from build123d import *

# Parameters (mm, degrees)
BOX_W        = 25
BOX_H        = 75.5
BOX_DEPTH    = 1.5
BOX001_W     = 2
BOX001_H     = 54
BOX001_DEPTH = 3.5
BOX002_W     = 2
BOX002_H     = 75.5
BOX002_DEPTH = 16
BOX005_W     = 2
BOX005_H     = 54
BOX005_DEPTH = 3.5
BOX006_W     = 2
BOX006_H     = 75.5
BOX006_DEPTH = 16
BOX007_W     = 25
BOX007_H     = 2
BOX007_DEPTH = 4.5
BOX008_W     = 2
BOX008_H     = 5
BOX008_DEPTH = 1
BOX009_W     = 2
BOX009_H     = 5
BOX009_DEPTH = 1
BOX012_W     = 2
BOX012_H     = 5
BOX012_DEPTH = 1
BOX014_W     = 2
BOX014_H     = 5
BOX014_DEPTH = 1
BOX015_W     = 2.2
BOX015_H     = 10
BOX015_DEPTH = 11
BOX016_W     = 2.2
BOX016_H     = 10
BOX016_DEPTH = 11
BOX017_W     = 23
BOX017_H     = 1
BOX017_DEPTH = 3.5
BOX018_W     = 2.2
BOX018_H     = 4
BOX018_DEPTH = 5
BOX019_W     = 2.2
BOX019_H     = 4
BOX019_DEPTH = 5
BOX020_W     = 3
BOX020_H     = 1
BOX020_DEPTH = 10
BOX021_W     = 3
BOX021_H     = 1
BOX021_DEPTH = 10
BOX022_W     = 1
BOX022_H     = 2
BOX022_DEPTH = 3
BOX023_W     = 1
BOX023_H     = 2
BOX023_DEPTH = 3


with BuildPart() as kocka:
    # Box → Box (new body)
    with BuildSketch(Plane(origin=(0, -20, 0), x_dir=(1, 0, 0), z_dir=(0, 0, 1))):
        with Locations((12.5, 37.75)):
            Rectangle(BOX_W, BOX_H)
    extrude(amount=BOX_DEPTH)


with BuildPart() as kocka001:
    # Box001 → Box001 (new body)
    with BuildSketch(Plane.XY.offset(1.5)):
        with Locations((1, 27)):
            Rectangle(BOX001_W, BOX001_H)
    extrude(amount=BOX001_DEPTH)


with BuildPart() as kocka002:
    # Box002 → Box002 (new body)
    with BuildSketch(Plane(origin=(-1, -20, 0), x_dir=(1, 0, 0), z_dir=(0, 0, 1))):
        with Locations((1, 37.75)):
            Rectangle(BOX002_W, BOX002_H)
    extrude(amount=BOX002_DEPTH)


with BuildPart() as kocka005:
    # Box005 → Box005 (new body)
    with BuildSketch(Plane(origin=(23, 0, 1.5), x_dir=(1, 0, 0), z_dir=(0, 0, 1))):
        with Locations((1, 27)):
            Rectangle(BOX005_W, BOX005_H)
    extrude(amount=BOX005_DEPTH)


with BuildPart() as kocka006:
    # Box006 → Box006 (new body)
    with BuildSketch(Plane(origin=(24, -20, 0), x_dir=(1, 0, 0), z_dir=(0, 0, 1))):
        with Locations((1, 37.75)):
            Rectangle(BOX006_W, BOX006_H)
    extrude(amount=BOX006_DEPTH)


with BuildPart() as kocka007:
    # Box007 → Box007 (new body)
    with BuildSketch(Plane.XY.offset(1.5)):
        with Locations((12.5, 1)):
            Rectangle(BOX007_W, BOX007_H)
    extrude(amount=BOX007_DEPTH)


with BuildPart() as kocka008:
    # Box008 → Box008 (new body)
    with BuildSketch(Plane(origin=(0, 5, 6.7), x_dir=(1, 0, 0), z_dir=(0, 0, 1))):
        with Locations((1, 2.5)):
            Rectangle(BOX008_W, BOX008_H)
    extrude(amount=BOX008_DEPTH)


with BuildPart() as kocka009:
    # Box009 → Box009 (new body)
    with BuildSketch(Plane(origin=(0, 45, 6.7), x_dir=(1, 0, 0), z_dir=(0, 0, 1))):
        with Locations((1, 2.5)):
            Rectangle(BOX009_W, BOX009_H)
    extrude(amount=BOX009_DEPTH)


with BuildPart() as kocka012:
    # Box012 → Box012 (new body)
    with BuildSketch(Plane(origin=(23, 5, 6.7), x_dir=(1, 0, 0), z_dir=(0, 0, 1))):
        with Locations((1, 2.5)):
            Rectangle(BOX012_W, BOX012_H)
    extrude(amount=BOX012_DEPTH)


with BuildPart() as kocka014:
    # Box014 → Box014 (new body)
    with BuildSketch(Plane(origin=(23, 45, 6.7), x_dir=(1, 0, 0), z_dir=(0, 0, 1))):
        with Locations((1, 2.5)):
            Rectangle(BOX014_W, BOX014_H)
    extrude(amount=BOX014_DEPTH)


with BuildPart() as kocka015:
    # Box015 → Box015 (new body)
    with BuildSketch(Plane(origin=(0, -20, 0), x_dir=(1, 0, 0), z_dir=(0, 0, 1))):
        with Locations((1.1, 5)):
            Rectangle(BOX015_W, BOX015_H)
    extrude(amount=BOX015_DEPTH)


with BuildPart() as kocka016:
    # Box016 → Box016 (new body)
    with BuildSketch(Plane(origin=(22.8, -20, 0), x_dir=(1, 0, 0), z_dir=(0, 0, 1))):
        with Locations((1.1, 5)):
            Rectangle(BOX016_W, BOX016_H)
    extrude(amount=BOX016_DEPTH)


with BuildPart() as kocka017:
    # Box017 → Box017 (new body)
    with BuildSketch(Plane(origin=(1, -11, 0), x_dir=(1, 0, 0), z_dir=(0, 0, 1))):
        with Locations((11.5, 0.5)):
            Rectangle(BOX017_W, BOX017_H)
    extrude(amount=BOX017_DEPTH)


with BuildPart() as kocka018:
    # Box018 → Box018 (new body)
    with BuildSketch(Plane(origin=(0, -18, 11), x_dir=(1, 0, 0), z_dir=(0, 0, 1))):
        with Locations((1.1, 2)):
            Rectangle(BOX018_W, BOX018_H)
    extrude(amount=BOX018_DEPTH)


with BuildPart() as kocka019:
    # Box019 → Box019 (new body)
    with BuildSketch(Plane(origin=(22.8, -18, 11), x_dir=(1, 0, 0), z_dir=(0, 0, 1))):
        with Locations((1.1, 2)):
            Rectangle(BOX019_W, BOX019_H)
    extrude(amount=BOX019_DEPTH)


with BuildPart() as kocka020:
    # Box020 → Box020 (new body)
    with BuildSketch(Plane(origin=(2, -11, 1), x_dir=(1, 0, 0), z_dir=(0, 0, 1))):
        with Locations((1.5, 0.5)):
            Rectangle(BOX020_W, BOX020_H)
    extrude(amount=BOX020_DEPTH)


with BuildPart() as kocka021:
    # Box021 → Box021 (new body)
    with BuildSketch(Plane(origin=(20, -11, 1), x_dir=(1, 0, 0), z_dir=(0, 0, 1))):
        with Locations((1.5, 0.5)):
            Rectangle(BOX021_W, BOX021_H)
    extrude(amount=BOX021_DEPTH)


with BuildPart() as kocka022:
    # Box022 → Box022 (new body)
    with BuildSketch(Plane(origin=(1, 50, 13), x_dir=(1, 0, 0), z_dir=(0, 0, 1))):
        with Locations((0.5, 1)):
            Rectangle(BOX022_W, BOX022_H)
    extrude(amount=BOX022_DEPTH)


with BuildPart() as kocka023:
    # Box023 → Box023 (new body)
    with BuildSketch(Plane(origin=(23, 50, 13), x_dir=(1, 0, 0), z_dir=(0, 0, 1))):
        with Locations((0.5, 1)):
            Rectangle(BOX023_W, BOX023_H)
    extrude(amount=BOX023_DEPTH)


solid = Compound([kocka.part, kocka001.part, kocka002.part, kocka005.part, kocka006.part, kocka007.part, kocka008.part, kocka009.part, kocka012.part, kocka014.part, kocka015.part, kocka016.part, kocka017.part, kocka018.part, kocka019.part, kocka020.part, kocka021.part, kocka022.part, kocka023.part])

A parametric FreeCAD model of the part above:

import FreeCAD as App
import Part
import Sketcher


def add_polygon(sketch, points):
    """Adds a closed chain of lines whose ends are joined by coincident constraints."""
    first, n = sketch.GeometryCount, len(points)
    for a, b in zip(points, points[1:] + points[:1]):
        sketch.addGeometry(Part.LineSegment(App.Vector(*a, 0), App.Vector(*b, 0)), False)
    for i in range(n):
        sketch.addConstraint(Sketcher.Constraint("Coincident", first + i, 2, first + (i + 1) % n, 1))

doc = App.newDocument("Part")
body = doc.addObject("PartDesign::Body", "Body")

# Sketch on XY plane
sketch1 = body.newObject("Sketcher::SketchObject", "Sketch")
sketch1.AttachmentSupport = (doc.getObject("XY_Plane"), [""])
sketch1.MapMode = "FlatFace"
add_polygon(sketch1, [(0, 56), (0, -20), (25, -20), (25, 56)])  # lines 0-3
sketch1.addConstraint([
    Sketcher.Constraint("Vertical", 0),
    Sketcher.Constraint("Horizontal", 1),
    Sketcher.Constraint("Vertical", 2),
    Sketcher.Constraint("Horizontal", 3),
    Sketcher.Constraint("PointOnObject", 0, 2, -2),
    Sketcher.Constraint("DistanceX", 1, 1, 1, 2, 25.0),
    Sketcher.Constraint("DistanceY", 0, 2, 0, 1, 75.5),
    Sketcher.Constraint("DistanceY", 0, 2, -1, 1, 20.0),
])
pad1 = body.newObject("PartDesign::Pad", "Pad")
pad1.Profile = sketch1
pad1.Length = 1.5
body2 = doc.addObject("PartDesign::Body", "Body001")

# Sketch on XY plane
sketch2 = body2.newObject("Sketcher::SketchObject", "Sketch001")
sketch2.AttachmentSupport = (doc.getObject("XY_Plane001"), [""])
sketch2.MapMode = "FlatFace"
sketch2.AttachmentOffset = App.Placement(App.Vector(0, 0, 1.5), App.Rotation())
add_polygon(sketch2, [(0, 54), (0, 0), (2, 0), (2, 54)])  # lines 0-3
sketch2.addConstraint([
    Sketcher.Constraint("Vertical", 0),
    Sketcher.Constraint("Horizontal", 1),
    Sketcher.Constraint("Vertical", 2),
    Sketcher.Constraint("Horizontal", 3),
    Sketcher.Constraint("Coincident", 0, 2, -1, 1),
    Sketcher.Constraint("DistanceX", 1, 1, 1, 2, 2.0),
    Sketcher.Constraint("DistanceY", 0, 2, 0, 1, 54.0),
])
pad2 = body2.newObject("PartDesign::Pad", "Pad001")
pad2.Profile = sketch2
pad2.Length = 3.5
body3 = doc.addObject("PartDesign::Body", "Body002")

# Sketch on XY plane
sketch3 = body3.newObject("Sketcher::SketchObject", "Sketch002")
sketch3.AttachmentSupport = (doc.getObject("XY_Plane002"), [""])
sketch3.MapMode = "FlatFace"
add_polygon(sketch3, [(-1, 55.5), (-1, -20), (1, -20), (1, 55.5)])  # lines 0-3
sketch3.addConstraint([
    Sketcher.Constraint("Vertical", 0),
    Sketcher.Constraint("Horizontal", 1),
    Sketcher.Constraint("Vertical", 2),
    Sketcher.Constraint("Horizontal", 3),
    Sketcher.Constraint("DistanceX", 1, 1, 1, 2, 2.0),
    Sketcher.Constraint("DistanceY", 0, 2, 0, 1, 75.5),
    Sketcher.Constraint("DistanceX", 0, 2, -1, 1, 1.0),
    Sketcher.Constraint("DistanceY", 0, 2, -1, 1, 20.0),
])
pad3 = body3.newObject("PartDesign::Pad", "Pad002")
pad3.Profile = sketch3
pad3.Length = 16
body4 = doc.addObject("PartDesign::Body", "Body003")

# Sketch on XY plane
sketch4 = body4.newObject("Sketcher::SketchObject", "Sketch003")
sketch4.AttachmentSupport = (doc.getObject("XY_Plane003"), [""])
sketch4.MapMode = "FlatFace"
sketch4.AttachmentOffset = App.Placement(App.Vector(0, 0, 1.5), App.Rotation())
add_polygon(sketch4, [(23, 54), (23, 0), (25, 0), (25, 54)])  # lines 0-3
sketch4.addConstraint([
    Sketcher.Constraint("Vertical", 0),
    Sketcher.Constraint("Horizontal", 1),
    Sketcher.Constraint("Vertical", 2),
    Sketcher.Constraint("Horizontal", 3),
    Sketcher.Constraint("PointOnObject", 0, 2, -1),
    Sketcher.Constraint("DistanceX", 1, 1, 1, 2, 2.0),
    Sketcher.Constraint("DistanceY", 0, 2, 0, 1, 54.0),
    Sketcher.Constraint("DistanceX", -1, 1, 0, 2, 23.0),
])
pad4 = body4.newObject("PartDesign::Pad", "Pad003")
pad4.Profile = sketch4
pad4.Length = 3.5
body5 = doc.addObject("PartDesign::Body", "Body004")

# Sketch on XY plane
sketch5 = body5.newObject("Sketcher::SketchObject", "Sketch004")
sketch5.AttachmentSupport = (doc.getObject("XY_Plane004"), [""])
sketch5.MapMode = "FlatFace"
add_polygon(sketch5, [(24, 55.5), (24, -20), (26, -20), (26, 55.5)])  # lines 0-3
sketch5.addConstraint([
    Sketcher.Constraint("Vertical", 0),
    Sketcher.Constraint("Horizontal", 1),
    Sketcher.Constraint("Vertical", 2),
    Sketcher.Constraint("Horizontal", 3),
    Sketcher.Constraint("DistanceX", 1, 1, 1, 2, 2.0),
    Sketcher.Constraint("DistanceY", 0, 2, 0, 1, 75.5),
    Sketcher.Constraint("DistanceX", -1, 1, 0, 2, 24.0),
    Sketcher.Constraint("DistanceY", 0, 2, -1, 1, 20.0),
])
pad5 = body5.newObject("PartDesign::Pad", "Pad004")
pad5.Profile = sketch5
pad5.Length = 16
body6 = doc.addObject("PartDesign::Body", "Body005")

# Sketch on XY plane
sketch6 = body6.newObject("Sketcher::SketchObject", "Sketch005")
sketch6.AttachmentSupport = (doc.getObject("XY_Plane005"), [""])
sketch6.MapMode = "FlatFace"
sketch6.AttachmentOffset = App.Placement(App.Vector(0, 0, 1.5), App.Rotation())
add_polygon(sketch6, [(0, 2), (0, 0), (25, 0), (25, 2)])  # lines 0-3
sketch6.addConstraint([
    Sketcher.Constraint("Vertical", 0),
    Sketcher.Constraint("Horizontal", 1),
    Sketcher.Constraint("Vertical", 2),
    Sketcher.Constraint("Horizontal", 3),
    Sketcher.Constraint("Coincident", 0, 2, -1, 1),
    Sketcher.Constraint("DistanceX", 1, 1, 1, 2, 25.0),
    Sketcher.Constraint("DistanceY", 0, 2, 0, 1, 2.0),
])
pad6 = body6.newObject("PartDesign::Pad", "Pad005")
pad6.Profile = sketch6
pad6.Length = 4.5
body7 = doc.addObject("PartDesign::Body", "Body006")

# Sketch on XY plane
sketch7 = body7.newObject("Sketcher::SketchObject", "Sketch006")
sketch7.AttachmentSupport = (doc.getObject("XY_Plane006"), [""])
sketch7.MapMode = "FlatFace"
sketch7.AttachmentOffset = App.Placement(App.Vector(0, 0, 6.7), App.Rotation())
add_polygon(sketch7, [(0, 10), (0, 5), (2, 5), (2, 10)])  # lines 0-3
sketch7.addConstraint([
    Sketcher.Constraint("Vertical", 0),
    Sketcher.Constraint("Horizontal", 1),
    Sketcher.Constraint("Vertical", 2),
    Sketcher.Constraint("Horizontal", 3),
    Sketcher.Constraint("PointOnObject", 0, 2, -2),
    Sketcher.Constraint("DistanceX", 1, 1, 1, 2, 2.0),
    Sketcher.Constraint("DistanceY", 0, 2, 0, 1, 5.0),
    Sketcher.Constraint("DistanceY", -1, 1, 0, 2, 5.0),
])
pad7 = body7.newObject("PartDesign::Pad", "Pad006")
pad7.Profile = sketch7
pad7.Length = 1
body8 = doc.addObject("PartDesign::Body", "Body007")

# Sketch on XY plane
sketch8 = body8.newObject("Sketcher::SketchObject", "Sketch007")
sketch8.AttachmentSupport = (doc.getObject("XY_Plane007"), [""])
sketch8.MapMode = "FlatFace"
sketch8.AttachmentOffset = App.Placement(App.Vector(0, 0, 6.7), App.Rotation())
add_polygon(sketch8, [(0, 50), (0, 45), (2, 45), (2, 50)])  # lines 0-3
sketch8.addConstraint([
    Sketcher.Constraint("Vertical", 0),
    Sketcher.Constraint("Horizontal", 1),
    Sketcher.Constraint("Vertical", 2),
    Sketcher.Constraint("Horizontal", 3),
    Sketcher.Constraint("PointOnObject", 0, 2, -2),
    Sketcher.Constraint("DistanceX", 1, 1, 1, 2, 2.0),
    Sketcher.Constraint("DistanceY", 0, 2, 0, 1, 5.0),
    Sketcher.Constraint("DistanceY", -1, 1, 0, 2, 45.0),
])
pad8 = body8.newObject("PartDesign::Pad", "Pad007")
pad8.Profile = sketch8
pad8.Length = 1
body9 = doc.addObject("PartDesign::Body", "Body008")

# Sketch on XY plane
sketch9 = body9.newObject("Sketcher::SketchObject", "Sketch008")
sketch9.AttachmentSupport = (doc.getObject("XY_Plane008"), [""])
sketch9.MapMode = "FlatFace"
sketch9.AttachmentOffset = App.Placement(App.Vector(0, 0, 6.7), App.Rotation())
add_polygon(sketch9, [(23, 10), (23, 5), (25, 5), (25, 10)])  # lines 0-3
sketch9.addConstraint([
    Sketcher.Constraint("Vertical", 0),
    Sketcher.Constraint("Horizontal", 1),
    Sketcher.Constraint("Vertical", 2),
    Sketcher.Constraint("Horizontal", 3),
    Sketcher.Constraint("DistanceX", 1, 1, 1, 2, 2.0),
    Sketcher.Constraint("DistanceY", 0, 2, 0, 1, 5.0),
    Sketcher.Constraint("DistanceX", -1, 1, 0, 2, 23.0),
    Sketcher.Constraint("DistanceY", -1, 1, 0, 2, 5.0),
])
pad9 = body9.newObject("PartDesign::Pad", "Pad008")
pad9.Profile = sketch9
pad9.Length = 1
body10 = doc.addObject("PartDesign::Body", "Body009")

# Sketch on XY plane
sketch10 = body10.newObject("Sketcher::SketchObject", "Sketch009")
sketch10.AttachmentSupport = (doc.getObject("XY_Plane009"), [""])
sketch10.MapMode = "FlatFace"
sketch10.AttachmentOffset = App.Placement(App.Vector(0, 0, 6.7), App.Rotation())
add_polygon(sketch10, [(23, 50), (23, 45), (25, 45), (25, 50)])  # lines 0-3
sketch10.addConstraint([
    Sketcher.Constraint("Vertical", 0),
    Sketcher.Constraint("Horizontal", 1),
    Sketcher.Constraint("Vertical", 2),
    Sketcher.Constraint("Horizontal", 3),
    Sketcher.Constraint("DistanceX", 1, 1, 1, 2, 2.0),
    Sketcher.Constraint("DistanceY", 0, 2, 0, 1, 5.0),
    Sketcher.Constraint("DistanceX", -1, 1, 0, 2, 23.0),
    Sketcher.Constraint("DistanceY", -1, 1, 0, 2, 45.0),
])
pad10 = body10.newObject("PartDesign::Pad", "Pad009")
pad10.Profile = sketch10
pad10.Length = 1
body11 = doc.addObject("PartDesign::Body", "Body010")

# Sketch on XY plane
sketch11 = body11.newObject("Sketcher::SketchObject", "Sketch010")
sketch11.AttachmentSupport = (doc.getObject("XY_Plane010"), [""])
sketch11.MapMode = "FlatFace"
add_polygon(sketch11, [(0, -10), (0, -20), (2.2, -20), (2.2, -10)])  # lines 0-3
sketch11.addConstraint([
    Sketcher.Constraint("Vertical", 0),
    Sketcher.Constraint("Horizontal", 1),
    Sketcher.Constraint("Vertical", 2),
    Sketcher.Constraint("Horizontal", 3),
    Sketcher.Constraint("PointOnObject", 0, 2, -2),
    Sketcher.Constraint("DistanceY", 0, 2, 0, 1, 10.0),
    Sketcher.Constraint("DistanceX", 1, 1, 1, 2, 2.2),
    Sketcher.Constraint("DistanceY", 0, 2, -1, 1, 20.0),
])
pad11 = body11.newObject("PartDesign::Pad", "Pad010")
pad11.Profile = sketch11
pad11.Length = 11
body12 = doc.addObject("PartDesign::Body", "Body011")

# Sketch on XY plane
sketch12 = body12.newObject("Sketcher::SketchObject", "Sketch011")
sketch12.AttachmentSupport = (doc.getObject("XY_Plane011"), [""])
sketch12.MapMode = "FlatFace"
add_polygon(sketch12, [(22.8, -10), (22.8, -20), (25, -20), (25, -10)])  # lines 0-3
sketch12.addConstraint([
    Sketcher.Constraint("Vertical", 0),
    Sketcher.Constraint("Horizontal", 1),
    Sketcher.Constraint("Vertical", 2),
    Sketcher.Constraint("Horizontal", 3),
    Sketcher.Constraint("DistanceY", 0, 2, 0, 1, 10.0),
    Sketcher.Constraint("DistanceX", 1, 1, 1, 2, 2.2),
    Sketcher.Constraint("DistanceY", 0, 2, -1, 1, 20.0),
    Sketcher.Constraint("DistanceX", -1, 1, 1, 2, 25.0),
])
pad12 = body12.newObject("PartDesign::Pad", "Pad011")
pad12.Profile = sketch12
pad12.Length = 11
body13 = doc.addObject("PartDesign::Body", "Body012")

# Sketch on XY plane
sketch13 = body13.newObject("Sketcher::SketchObject", "Sketch012")
sketch13.AttachmentSupport = (doc.getObject("XY_Plane012"), [""])
sketch13.MapMode = "FlatFace"
add_polygon(sketch13, [(1, -10), (1, -11), (24, -11), (24, -10)])  # lines 0-3
sketch13.addConstraint([
    Sketcher.Constraint("Vertical", 0),
    Sketcher.Constraint("Horizontal", 1),
    Sketcher.Constraint("Vertical", 2),
    Sketcher.Constraint("Horizontal", 3),
    Sketcher.Constraint("DistanceX", 1, 1, 1, 2, 23.0),
    Sketcher.Constraint("DistanceY", 0, 2, 0, 1, 1.0),
    Sketcher.Constraint("DistanceX", -1, 1, 0, 2, 1.0),
    Sketcher.Constraint("DistanceY", 0, 2, -1, 1, 11.0),
])
pad13 = body13.newObject("PartDesign::Pad", "Pad012")
pad13.Profile = sketch13
pad13.Length = 3.5
body14 = doc.addObject("PartDesign::Body", "Body013")

# Sketch on XY plane
sketch14 = body14.newObject("Sketcher::SketchObject", "Sketch013")
sketch14.AttachmentSupport = (doc.getObject("XY_Plane013"), [""])
sketch14.MapMode = "FlatFace"
sketch14.AttachmentOffset = App.Placement(App.Vector(0, 0, 11), App.Rotation())
add_polygon(sketch14, [(0, -14), (0, -18), (2.2, -18), (2.2, -14)])  # lines 0-3
sketch14.addConstraint([
    Sketcher.Constraint("Vertical", 0),
    Sketcher.Constraint("Horizontal", 1),
    Sketcher.Constraint("Vertical", 2),
    Sketcher.Constraint("Horizontal", 3),
    Sketcher.Constraint("PointOnObject", 0, 2, -2),
    Sketcher.Constraint("DistanceY", 0, 2, 0, 1, 4.0),
    Sketcher.Constraint("DistanceX", 1, 1, 1, 2, 2.2),
    Sketcher.Constraint("DistanceY", 0, 2, -1, 1, 18.0),
])
pad14 = body14.newObject("PartDesign::Pad", "Pad013")
pad14.Profile = sketch14
pad14.Length = 5
body15 = doc.addObject("PartDesign::Body", "Body014")

# Sketch on XY plane
sketch15 = body15.newObject("Sketcher::SketchObject", "Sketch014")
sketch15.AttachmentSupport = (doc.getObject("XY_Plane014"), [""])
sketch15.MapMode = "FlatFace"
sketch15.AttachmentOffset = App.Placement(App.Vector(0, 0, 11), App.Rotation())
add_polygon(sketch15, [(22.8, -14), (22.8, -18), (25, -18), (25, -14)])  # lines 0-3
sketch15.addConstraint([
    Sketcher.Constraint("Vertical", 0),
    Sketcher.Constraint("Horizontal", 1),
    Sketcher.Constraint("Vertical", 2),
    Sketcher.Constraint("Horizontal", 3),
    Sketcher.Constraint("DistanceY", 0, 2, 0, 1, 4.0),
    Sketcher.Constraint("DistanceX", 1, 1, 1, 2, 2.2),
    Sketcher.Constraint("DistanceY", 0, 2, -1, 1, 18.0),
    Sketcher.Constraint("DistanceX", -1, 1, 1, 2, 25.0),
])
pad15 = body15.newObject("PartDesign::Pad", "Pad014")
pad15.Profile = sketch15
pad15.Length = 5
body16 = doc.addObject("PartDesign::Body", "Body015")

# Sketch on XY plane
sketch16 = body16.newObject("Sketcher::SketchObject", "Sketch015")
sketch16.AttachmentSupport = (doc.getObject("XY_Plane015"), [""])
sketch16.MapMode = "FlatFace"
sketch16.AttachmentOffset = App.Placement(App.Vector(0, 0, 1), App.Rotation())
add_polygon(sketch16, [(2, -10), (2, -11), (5, -11), (5, -10)])  # lines 0-3
sketch16.addConstraint([
    Sketcher.Constraint("Vertical", 0),
    Sketcher.Constraint("Horizontal", 1),
    Sketcher.Constraint("Vertical", 2),
    Sketcher.Constraint("Horizontal", 3),
    Sketcher.Constraint("DistanceX", 1, 1, 1, 2, 3.0),
    Sketcher.Constraint("DistanceY", 0, 2, 0, 1, 1.0),
    Sketcher.Constraint("DistanceX", -1, 1, 0, 2, 2.0),
    Sketcher.Constraint("DistanceY", 0, 2, -1, 1, 11.0),
])
pad16 = body16.newObject("PartDesign::Pad", "Pad015")
pad16.Profile = sketch16
pad16.Length = 10
body17 = doc.addObject("PartDesign::Body", "Body016")

# Sketch on XY plane
sketch17 = body17.newObject("Sketcher::SketchObject", "Sketch016")
sketch17.AttachmentSupport = (doc.getObject("XY_Plane016"), [""])
sketch17.MapMode = "FlatFace"
sketch17.AttachmentOffset = App.Placement(App.Vector(0, 0, 1), App.Rotation())
add_polygon(sketch17, [(20, -10), (20, -11), (23, -11), (23, -10)])  # lines 0-3
sketch17.addConstraint([
    Sketcher.Constraint("Vertical", 0),
    Sketcher.Constraint("Horizontal", 1),
    Sketcher.Constraint("Vertical", 2),
    Sketcher.Constraint("Horizontal", 3),
    Sketcher.Constraint("DistanceX", 1, 1, 1, 2, 3.0),
    Sketcher.Constraint("DistanceY", 0, 2, 0, 1, 1.0),
    Sketcher.Constraint("DistanceX", -1, 1, 0, 2, 20.0),
    Sketcher.Constraint("DistanceY", 0, 2, -1, 1, 11.0),
])
pad17 = body17.newObject("PartDesign::Pad", "Pad016")
pad17.Profile = sketch17
pad17.Length = 10
body18 = doc.addObject("PartDesign::Body", "Body017")

# Sketch on XY plane
sketch18 = body18.newObject("Sketcher::SketchObject", "Sketch017")
sketch18.AttachmentSupport = (doc.getObject("XY_Plane017"), [""])
sketch18.MapMode = "FlatFace"
sketch18.AttachmentOffset = App.Placement(App.Vector(0, 0, 13), App.Rotation())
add_polygon(sketch18, [(1, 52), (1, 50), (2, 50), (2, 52)])  # lines 0-3
sketch18.addConstraint([
    Sketcher.Constraint("Vertical", 0),
    Sketcher.Constraint("Horizontal", 1),
    Sketcher.Constraint("Vertical", 2),
    Sketcher.Constraint("Horizontal", 3),
    Sketcher.Constraint("DistanceX", 1, 1, 1, 2, 1.0),
    Sketcher.Constraint("DistanceY", 0, 2, 0, 1, 2.0),
    Sketcher.Constraint("DistanceX", -1, 1, 0, 2, 1.0),
    Sketcher.Constraint("DistanceY", -1, 1, 0, 2, 50.0),
])
pad18 = body18.newObject("PartDesign::Pad", "Pad017")
pad18.Profile = sketch18
pad18.Length = 3
body19 = doc.addObject("PartDesign::Body", "Body018")

# Sketch on XY plane
sketch19 = body19.newObject("Sketcher::SketchObject", "Sketch018")
sketch19.AttachmentSupport = (doc.getObject("XY_Plane018"), [""])
sketch19.MapMode = "FlatFace"
sketch19.AttachmentOffset = App.Placement(App.Vector(0, 0, 13), App.Rotation())
add_polygon(sketch19, [(23, 52), (23, 50), (24, 50), (24, 52)])  # lines 0-3
sketch19.addConstraint([
    Sketcher.Constraint("Vertical", 0),
    Sketcher.Constraint("Horizontal", 1),
    Sketcher.Constraint("Vertical", 2),
    Sketcher.Constraint("Horizontal", 3),
    Sketcher.Constraint("DistanceX", 1, 1, 1, 2, 1.0),
    Sketcher.Constraint("DistanceY", 0, 2, 0, 1, 2.0),
    Sketcher.Constraint("DistanceX", -1, 1, 0, 2, 23.0),
    Sketcher.Constraint("DistanceY", -1, 1, 0, 2, 50.0),
])
pad19 = body19.newObject("PartDesign::Pad", "Pad018")
pad19.Profile = sketch19
pad19.Length = 3

doc.recompute()
